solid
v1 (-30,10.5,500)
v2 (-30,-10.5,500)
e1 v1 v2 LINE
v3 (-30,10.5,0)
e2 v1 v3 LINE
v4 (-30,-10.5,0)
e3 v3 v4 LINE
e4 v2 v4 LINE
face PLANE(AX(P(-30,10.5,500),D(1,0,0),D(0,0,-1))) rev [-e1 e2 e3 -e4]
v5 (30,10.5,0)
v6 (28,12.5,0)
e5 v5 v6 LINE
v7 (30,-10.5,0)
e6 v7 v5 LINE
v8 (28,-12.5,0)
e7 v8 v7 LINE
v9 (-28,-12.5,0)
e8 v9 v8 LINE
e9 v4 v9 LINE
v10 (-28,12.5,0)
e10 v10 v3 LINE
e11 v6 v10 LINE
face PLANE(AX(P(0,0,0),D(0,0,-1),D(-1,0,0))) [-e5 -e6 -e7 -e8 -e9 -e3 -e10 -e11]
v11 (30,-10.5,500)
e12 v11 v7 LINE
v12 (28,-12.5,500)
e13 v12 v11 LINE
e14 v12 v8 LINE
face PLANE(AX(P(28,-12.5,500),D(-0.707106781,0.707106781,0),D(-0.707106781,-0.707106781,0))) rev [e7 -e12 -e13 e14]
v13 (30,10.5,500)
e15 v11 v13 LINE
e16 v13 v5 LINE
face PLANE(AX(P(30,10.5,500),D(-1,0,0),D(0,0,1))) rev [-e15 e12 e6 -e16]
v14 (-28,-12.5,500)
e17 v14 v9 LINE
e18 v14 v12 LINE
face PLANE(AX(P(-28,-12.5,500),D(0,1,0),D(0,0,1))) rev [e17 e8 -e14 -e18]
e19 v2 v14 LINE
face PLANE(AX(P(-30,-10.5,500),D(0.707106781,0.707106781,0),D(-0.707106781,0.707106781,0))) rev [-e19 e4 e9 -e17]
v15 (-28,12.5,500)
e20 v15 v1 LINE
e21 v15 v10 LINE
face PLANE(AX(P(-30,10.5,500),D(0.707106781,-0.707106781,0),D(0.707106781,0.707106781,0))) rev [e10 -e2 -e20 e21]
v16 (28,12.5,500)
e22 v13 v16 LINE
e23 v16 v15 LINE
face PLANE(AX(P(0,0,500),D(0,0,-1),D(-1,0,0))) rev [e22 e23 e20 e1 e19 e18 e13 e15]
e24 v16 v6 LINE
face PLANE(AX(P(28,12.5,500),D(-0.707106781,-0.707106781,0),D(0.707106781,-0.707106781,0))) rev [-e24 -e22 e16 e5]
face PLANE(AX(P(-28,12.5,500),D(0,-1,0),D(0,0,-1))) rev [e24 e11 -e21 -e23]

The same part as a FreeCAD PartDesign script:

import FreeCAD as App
import Part
import Sketcher

V = App.Vector
Q = App.Units.Quantity


def add_polygon(sketch, points):
    """Adds a closed chain of lines whose ends are joined by coincident constraints."""
    first, n = sketch.GeometryCount, len(points)
    for a, b in zip(points, points[1:] + points[:1]):
        sketch.addGeometry(Part.LineSegment(App.Vector(*a, 0), App.Vector(*b, 0)), False)
    for i in range(n):
        sketch.addConstraint(Sketcher.Constraint("Coincident", first + i, 2, first + (i + 1) % n, 1))

doc = App.newDocument("Part")
body = doc.addObject("PartDesign::Body", "Body")

sketch1 = body.newObject("Sketcher::SketchObject", "Sketch")
sketch1.AttachmentSupport = (doc.getObject("XY_Plane"), [""])
sketch1.MapMode = "FlatFace"
add_polygon(sketch1, [(-28, 12.5), (-30, 10.5), (-30, -10.5), (-28, -12.5), (28, -12.5), (30, -10.5), (30, 10.5), (28, 12.5)])
sketch1.addConstraint([
    Sketcher.Constraint("Vertical", 1),
    Sketcher.Constraint("Horizontal", 3),
    Sketcher.Constraint("Vertical", 5),
    Sketcher.Constraint("Horizontal", 7),
    Sketcher.Constraint("Symmetric", 0, 2, 4, 2, -1, 1),
    Sketcher.Constraint("Symmetric", 2, 2, 6, 2, -1, 1),
    Sketcher.Constraint("Perpendicular", 0, 2),
    Sketcher.Constraint("Perpendicular", 2, 4),
    Sketcher.Constraint("Perpendicular", 4, 6),
    Sketcher.Constraint("Horizontal", 1, 2, 4, 2),
    Sketcher.Constraint("Vertical", 3, 2, 6, 2),
    Sketcher.Constraint("DistanceX", 3, 1, 3, 2, Q("56 mm")),
    Sketcher.Constraint("DistanceY", 1, 2, 1, 1, Q("21 mm")),
    Sketcher.Constraint("DistanceX", 0, 2, -1, 1, Q("30 mm")),
])
pad1 = body.newObject("PartDesign::Pad", "Pad")
pad1.Profile = sketch1
pad1.Length = 500

doc.recompute()
